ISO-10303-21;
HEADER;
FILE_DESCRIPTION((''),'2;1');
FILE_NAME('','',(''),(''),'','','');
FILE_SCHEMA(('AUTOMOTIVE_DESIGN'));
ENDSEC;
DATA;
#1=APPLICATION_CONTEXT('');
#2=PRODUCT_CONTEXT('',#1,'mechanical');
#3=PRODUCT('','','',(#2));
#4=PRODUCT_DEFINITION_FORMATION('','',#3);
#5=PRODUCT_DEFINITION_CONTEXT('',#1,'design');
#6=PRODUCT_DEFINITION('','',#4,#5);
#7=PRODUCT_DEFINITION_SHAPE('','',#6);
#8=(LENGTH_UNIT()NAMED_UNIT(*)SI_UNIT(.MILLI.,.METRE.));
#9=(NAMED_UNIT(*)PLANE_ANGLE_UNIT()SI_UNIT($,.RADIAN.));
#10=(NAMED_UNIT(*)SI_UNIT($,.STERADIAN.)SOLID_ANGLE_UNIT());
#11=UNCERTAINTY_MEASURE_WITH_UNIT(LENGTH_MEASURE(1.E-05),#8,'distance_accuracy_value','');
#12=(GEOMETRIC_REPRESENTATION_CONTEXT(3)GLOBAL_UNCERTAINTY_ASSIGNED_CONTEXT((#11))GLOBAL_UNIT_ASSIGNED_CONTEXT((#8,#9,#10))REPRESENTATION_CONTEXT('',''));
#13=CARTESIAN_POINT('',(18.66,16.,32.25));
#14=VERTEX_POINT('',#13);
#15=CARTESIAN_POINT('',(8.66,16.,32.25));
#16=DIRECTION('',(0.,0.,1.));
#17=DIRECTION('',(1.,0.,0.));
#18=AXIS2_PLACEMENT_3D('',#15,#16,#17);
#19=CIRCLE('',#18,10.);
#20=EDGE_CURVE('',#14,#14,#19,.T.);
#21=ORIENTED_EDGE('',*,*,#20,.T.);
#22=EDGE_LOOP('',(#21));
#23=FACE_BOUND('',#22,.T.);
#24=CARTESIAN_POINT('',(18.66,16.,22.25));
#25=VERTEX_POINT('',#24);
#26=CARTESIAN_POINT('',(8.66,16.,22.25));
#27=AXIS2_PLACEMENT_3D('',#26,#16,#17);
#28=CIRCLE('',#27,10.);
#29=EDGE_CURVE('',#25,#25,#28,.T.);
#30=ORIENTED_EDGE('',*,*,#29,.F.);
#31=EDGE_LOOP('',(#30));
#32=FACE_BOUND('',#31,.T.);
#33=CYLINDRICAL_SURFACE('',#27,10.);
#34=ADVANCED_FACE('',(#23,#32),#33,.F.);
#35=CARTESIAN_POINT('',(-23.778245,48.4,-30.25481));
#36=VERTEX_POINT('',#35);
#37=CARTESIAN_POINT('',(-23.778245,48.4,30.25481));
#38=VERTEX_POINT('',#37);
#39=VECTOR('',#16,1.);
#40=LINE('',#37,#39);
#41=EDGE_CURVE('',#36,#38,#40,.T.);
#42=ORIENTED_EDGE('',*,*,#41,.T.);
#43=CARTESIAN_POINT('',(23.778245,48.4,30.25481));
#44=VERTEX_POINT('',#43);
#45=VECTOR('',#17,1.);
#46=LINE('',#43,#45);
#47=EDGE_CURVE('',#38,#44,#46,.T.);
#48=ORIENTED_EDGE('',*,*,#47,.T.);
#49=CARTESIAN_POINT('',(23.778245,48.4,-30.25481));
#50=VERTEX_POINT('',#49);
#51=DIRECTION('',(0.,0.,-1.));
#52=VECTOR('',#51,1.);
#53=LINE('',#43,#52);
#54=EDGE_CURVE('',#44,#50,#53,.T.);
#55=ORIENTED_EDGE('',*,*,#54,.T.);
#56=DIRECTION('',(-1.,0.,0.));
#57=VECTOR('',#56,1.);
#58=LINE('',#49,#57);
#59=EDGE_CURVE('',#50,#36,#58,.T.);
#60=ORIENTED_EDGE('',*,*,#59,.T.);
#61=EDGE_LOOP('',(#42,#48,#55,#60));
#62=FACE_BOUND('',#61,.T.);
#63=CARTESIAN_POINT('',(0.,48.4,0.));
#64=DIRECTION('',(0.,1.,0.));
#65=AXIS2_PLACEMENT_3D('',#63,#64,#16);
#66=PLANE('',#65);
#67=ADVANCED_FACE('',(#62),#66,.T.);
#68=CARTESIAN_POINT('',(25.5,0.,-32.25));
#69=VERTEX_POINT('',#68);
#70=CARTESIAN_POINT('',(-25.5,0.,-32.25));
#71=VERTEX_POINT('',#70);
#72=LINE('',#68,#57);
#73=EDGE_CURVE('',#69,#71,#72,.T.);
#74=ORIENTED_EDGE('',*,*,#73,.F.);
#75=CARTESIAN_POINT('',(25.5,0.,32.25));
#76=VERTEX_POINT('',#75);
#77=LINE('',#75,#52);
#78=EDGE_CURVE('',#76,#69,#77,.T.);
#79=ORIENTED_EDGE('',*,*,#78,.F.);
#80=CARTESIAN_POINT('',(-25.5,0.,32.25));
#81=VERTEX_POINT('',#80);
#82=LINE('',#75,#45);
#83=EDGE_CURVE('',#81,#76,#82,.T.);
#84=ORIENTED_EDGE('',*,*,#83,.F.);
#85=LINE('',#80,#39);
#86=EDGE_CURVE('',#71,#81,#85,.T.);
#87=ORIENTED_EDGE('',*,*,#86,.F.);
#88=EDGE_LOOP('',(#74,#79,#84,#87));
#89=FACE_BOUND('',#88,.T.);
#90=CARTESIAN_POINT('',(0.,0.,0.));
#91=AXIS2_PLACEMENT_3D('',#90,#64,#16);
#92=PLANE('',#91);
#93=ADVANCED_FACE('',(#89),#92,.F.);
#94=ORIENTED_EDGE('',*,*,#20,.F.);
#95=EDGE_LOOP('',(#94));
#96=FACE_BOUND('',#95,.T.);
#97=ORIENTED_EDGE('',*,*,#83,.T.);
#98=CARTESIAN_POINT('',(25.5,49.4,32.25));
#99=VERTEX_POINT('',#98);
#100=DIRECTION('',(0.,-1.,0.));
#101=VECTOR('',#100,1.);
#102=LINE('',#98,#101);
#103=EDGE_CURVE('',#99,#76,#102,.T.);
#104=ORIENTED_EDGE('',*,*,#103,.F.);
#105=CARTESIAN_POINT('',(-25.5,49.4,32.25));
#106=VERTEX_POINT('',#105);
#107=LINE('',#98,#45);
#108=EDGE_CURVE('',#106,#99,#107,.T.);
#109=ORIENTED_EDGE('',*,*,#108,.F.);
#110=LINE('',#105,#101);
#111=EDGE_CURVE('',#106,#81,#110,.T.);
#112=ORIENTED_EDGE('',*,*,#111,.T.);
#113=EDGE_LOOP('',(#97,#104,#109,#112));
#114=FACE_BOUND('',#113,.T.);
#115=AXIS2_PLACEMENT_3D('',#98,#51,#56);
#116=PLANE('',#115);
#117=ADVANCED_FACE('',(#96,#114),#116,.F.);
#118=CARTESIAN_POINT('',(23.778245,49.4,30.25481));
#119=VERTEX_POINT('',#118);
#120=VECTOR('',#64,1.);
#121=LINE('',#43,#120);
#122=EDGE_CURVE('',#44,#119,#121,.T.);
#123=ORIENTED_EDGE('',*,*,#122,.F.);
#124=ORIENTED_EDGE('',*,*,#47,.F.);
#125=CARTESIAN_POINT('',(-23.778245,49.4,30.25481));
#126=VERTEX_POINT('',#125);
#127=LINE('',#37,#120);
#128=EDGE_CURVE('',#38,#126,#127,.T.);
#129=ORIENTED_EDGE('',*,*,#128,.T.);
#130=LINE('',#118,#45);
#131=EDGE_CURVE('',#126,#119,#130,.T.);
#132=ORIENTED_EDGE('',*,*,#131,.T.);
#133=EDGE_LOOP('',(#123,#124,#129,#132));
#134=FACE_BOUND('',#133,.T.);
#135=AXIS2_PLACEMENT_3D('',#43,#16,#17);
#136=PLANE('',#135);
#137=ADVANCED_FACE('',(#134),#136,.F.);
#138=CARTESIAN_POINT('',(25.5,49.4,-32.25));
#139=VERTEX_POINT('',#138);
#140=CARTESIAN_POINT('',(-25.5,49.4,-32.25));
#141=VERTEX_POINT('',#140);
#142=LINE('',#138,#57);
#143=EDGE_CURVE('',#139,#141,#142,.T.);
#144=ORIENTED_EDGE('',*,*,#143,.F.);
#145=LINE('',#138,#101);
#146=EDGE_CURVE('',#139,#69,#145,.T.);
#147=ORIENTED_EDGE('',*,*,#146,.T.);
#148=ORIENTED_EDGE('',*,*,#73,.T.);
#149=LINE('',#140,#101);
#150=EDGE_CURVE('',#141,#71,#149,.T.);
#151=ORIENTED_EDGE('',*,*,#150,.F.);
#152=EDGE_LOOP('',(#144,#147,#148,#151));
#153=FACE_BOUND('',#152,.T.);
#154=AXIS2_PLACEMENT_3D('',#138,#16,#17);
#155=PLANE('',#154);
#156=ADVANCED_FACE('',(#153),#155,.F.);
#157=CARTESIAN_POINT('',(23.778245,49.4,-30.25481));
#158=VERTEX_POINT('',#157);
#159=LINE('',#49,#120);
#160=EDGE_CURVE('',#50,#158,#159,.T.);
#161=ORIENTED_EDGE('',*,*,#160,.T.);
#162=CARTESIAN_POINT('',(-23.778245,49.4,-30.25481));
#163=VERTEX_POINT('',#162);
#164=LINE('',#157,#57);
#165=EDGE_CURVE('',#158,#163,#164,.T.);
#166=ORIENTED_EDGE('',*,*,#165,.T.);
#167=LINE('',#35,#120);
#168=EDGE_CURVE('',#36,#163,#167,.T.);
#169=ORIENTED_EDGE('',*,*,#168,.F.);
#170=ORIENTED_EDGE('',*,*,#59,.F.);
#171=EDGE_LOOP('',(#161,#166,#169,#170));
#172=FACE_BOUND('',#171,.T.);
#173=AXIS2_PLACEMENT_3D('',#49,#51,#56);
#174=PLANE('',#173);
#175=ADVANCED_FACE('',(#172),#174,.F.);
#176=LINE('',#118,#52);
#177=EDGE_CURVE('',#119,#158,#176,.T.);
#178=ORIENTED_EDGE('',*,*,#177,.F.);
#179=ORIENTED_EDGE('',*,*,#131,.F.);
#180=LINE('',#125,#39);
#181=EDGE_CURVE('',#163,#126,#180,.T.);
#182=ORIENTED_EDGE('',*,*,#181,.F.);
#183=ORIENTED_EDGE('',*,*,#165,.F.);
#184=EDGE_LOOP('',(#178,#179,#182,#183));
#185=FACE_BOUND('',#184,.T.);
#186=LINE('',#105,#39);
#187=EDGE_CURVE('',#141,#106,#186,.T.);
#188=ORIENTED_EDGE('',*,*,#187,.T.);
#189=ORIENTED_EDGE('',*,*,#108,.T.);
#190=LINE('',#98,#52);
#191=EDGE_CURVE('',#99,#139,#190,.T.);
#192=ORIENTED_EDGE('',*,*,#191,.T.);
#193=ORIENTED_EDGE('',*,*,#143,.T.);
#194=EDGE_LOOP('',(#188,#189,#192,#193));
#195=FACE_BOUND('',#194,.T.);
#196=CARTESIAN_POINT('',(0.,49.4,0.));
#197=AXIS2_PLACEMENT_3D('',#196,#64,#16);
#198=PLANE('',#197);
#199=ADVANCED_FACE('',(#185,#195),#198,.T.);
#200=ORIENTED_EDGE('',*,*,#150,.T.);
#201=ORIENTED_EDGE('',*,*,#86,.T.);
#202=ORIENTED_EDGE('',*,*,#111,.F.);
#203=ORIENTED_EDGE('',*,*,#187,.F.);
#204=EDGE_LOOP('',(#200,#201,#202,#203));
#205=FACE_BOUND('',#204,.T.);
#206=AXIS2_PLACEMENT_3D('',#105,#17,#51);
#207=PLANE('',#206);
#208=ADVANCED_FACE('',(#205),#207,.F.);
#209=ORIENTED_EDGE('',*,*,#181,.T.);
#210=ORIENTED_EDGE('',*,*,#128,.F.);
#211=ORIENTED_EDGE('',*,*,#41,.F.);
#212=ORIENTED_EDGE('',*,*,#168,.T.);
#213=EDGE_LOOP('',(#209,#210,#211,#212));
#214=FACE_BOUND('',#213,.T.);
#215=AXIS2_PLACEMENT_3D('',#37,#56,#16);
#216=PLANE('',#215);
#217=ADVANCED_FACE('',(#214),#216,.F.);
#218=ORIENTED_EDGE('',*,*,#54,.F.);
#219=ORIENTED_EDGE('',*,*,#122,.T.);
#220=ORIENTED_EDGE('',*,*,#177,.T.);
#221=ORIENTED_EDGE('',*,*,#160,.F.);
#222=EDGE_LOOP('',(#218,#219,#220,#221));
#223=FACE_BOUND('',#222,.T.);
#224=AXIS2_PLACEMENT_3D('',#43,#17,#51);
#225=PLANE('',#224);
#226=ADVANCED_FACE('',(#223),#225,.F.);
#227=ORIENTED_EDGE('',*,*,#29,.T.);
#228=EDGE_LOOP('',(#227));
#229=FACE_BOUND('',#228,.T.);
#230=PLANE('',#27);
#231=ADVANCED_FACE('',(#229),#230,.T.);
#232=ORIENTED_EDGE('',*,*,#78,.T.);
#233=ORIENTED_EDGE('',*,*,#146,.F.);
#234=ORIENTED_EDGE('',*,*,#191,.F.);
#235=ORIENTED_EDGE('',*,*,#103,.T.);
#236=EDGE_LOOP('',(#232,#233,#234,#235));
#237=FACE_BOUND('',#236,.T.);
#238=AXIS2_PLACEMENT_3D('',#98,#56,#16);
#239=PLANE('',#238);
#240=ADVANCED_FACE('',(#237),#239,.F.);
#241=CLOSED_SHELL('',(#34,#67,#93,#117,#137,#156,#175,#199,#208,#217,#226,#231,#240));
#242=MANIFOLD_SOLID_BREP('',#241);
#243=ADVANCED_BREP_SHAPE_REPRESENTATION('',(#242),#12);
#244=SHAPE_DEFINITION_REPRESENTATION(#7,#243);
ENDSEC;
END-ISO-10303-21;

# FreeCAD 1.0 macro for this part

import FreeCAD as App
import Part
import Sketcher


def add_polygon(sketch, points):
    """Adds a closed chain of lines whose ends are joined by coincident constraints."""
    first, n = sketch.GeometryCount, len(points)
    for a, b in zip(points, points[1:] + points[:1]):
        sketch.addGeometry(Part.LineSegment(App.Vector(*a, 0), App.Vector(*b, 0)), False)
    for i in range(n):
        sketch.addConstraint(Sketcher.Constraint("Coincident", first + i, 2, first + (i + 1) % n, 1))

doc = App.newDocument("Part")
body = doc.addObject("PartDesign::Body", "Body")

sketch1 = body.newObject("Sketcher::SketchObject", "Sketch")
sketch1.AttachmentSupport = (doc.getObject("XZ_Plane"), [""])
sketch1.MapMode = "FlatFace"
add_polygon(sketch1, [(-26, -32), (-26, 32), (26, 32), (26, -32)])
sketch1.addConstraint([
    Sketcher.Constraint("Vertical", 0),
    Sketcher.Constraint("Horizontal", 1),
    Sketcher.Constraint("Vertical", 2),
    Sketcher.Constraint("Horizontal", 3),
    Sketcher.Constraint("Symmetric", 0, 2, 2, 2, -1, 1),
    Sketcher.Constraint("DistanceX", 1, 1, 1, 2, 51.0),
    Sketcher.Constraint("DistanceY", 0, 1, 0, 2, 64.5),
])
pad1 = body.newObject("PartDesign::Pad", "Pad")
pad1.Profile = sketch1
pad1.Length = 49.4
pad1.Reversed = True

sketch2 = body.newObject("Sketcher::SketchObject", "Sketch001")
sketch2.AttachmentSupport = (doc.getObject("XY_Plane"), [""])
sketch2.MapMode = "FlatFace"
sketch2.AttachmentOffset = App.Placement(App.Vector(0, 0, 32.25), App.Rotation())
sketch2.addGeometry(Part.Circle(App.Vector(9, 16, 0), App.Vector(0, 0, 1), 10), False)
sketch2.addConstraint([
    Sketcher.Constraint("Diameter", 0, 20.0),
    Sketcher.Constraint("DistanceY", -1, 1, 0, 3, 16.0),
    Sketcher.Constraint("DistanceX", -1, 1, 0, 3, 8.66),
])
pocket1 = body.newObject("PartDesign::Pocket", "Pocket")
pocket1.Profile = sketch2
pocket1.Length = 10

sketch3 = body.newObject("Sketcher::SketchObject", "Sketch002")
sketch3.AttachmentSupport = (doc.getObject("XZ_Plane"), [""])
sketch3.MapMode = "FlatFace"
sketch3.AttachmentOffset = App.Placement(App.Vector(0, 0, -49.4), App.Rotation())
add_polygon(sketch3, [(-24, -30), (-24, 30), (24, 30), (24, -30)])
sketch3.addConstraint([
    Sketcher.Constraint("Vertical", 0),
    Sketcher.Constraint("Horizontal", 1),
    Sketcher.Constraint("Vertical", 2),
    Sketcher.Constraint("Horizontal", 3),
    Sketcher.Constraint("Symmetric", 0, 2, 2, 2, -1, 1),
    Sketcher.Constraint("DistanceX", 1, 1, 1, 2, 47.556491),
    Sketcher.Constraint("DistanceY", 0, 1, 0, 2, 60.50962),
])
pocket2 = body.newObject("PartDesign::Pocket", "Pocket001")
pocket2.Profile = sketch3
pocket2.Length = 1
pocket2.Reversed = True

doc.recompute()
